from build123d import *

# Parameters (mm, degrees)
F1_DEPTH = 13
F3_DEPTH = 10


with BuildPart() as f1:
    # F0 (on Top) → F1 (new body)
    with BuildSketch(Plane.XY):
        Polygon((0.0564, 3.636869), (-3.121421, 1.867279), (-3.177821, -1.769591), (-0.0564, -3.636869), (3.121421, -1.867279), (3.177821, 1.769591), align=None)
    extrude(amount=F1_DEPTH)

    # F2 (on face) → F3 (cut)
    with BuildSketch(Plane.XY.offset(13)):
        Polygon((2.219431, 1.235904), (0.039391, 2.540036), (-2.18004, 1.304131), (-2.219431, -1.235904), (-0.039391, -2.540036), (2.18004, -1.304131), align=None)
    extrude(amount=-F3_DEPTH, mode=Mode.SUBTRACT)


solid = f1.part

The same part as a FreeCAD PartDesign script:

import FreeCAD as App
import Part
import Sketcher
Q = App.Units.Quantity


def add_polygon(sketch, points):
    """Adds a closed chain of lines whose ends are joined by coincident constraints."""
    first, n = sketch.GeometryCount, len(points)
    for a, b in zip(points, points[1:] + points[:1]):
        sketch.addGeometry(Part.LineSegment(App.Vector(*a, 0), App.Vector(*b, 0)), False)
    for i in range(n):
        sketch.addConstraint(Sketcher.Constraint("Coincident", first + i, 2, first + (i + 1) % n, 1))

doc = App.newDocument("Part")
body = doc.addObject("PartDesign::Body", "Body")

sketch1 = body.newObject("Sketcher::SketchObject", "Sketch")
sketch1.AttachmentSupport = (doc.getObject("XY_Plane"), [""])
sketch1.MapMode = "FlatFace"
add_polygon(sketch1, [(0.0564, 3.636869), (-3.121421, 1.867279), (-3.177821, -1.769591), (-0.0564, -3.636869), (3.121421, -1.867279), (3.177821, 1.769591)])
sketch1.addConstraint([
    Sketcher.Constraint("Symmetric", 0, 2, 3, 2, -1, 1),
    Sketcher.Constraint("Symmetric", 1, 2, 4, 2, -1, 1),
    Sketcher.Constraint("Symmetric", 2, 2, 5, 2, -1, 1),
    Sketcher.Constraint("Equal", 0, 1),
    Sketcher.Constraint("Equal", 1, 2),
    Sketcher.Constraint("DistanceX", 2, 2, -1, 1, Q("0.0564 mm")),
    Sketcher.Constraint("DistanceX", 1, 2, 0, 2, Q("0.0564 mm")),
    Sketcher.Constraint("DistanceX", 0, 2, -1, 1, Q("3.121421 mm")),
    Sketcher.Constraint("DistanceY", -1, 1, 0, 2, Q("1.867279 mm")),
])
pad1 = body.newObject("PartDesign::Pad", "Pad")
pad1.Profile = sketch1
pad1.Length = 13

sketch2 = body.newObject("Sketcher::SketchObject", "Sketch001")
sketch2.AttachmentSupport = (doc.getObject("XY_Plane"), [""])
sketch2.MapMode = "FlatFace"
sketch2.AttachmentOffset = App.Placement(App.Vector(0, 0, 13), App.Rotation())
add_polygon(sketch2, [(2.219431, 1.235904), (0.039391, 2.540036), (-2.18004, 1.304131), (-2.219431, -1.235904), (-0.039391, -2.540036), (2.18004, -1.304131)])
sketch2.addConstraint([
    Sketcher.Constraint("Symmetric", 0, 2, 3, 2, -1, 1),
    Sketcher.Constraint("Symmetric", 1, 2, 4, 2, -1, 1),
    Sketcher.Constraint("Symmetric", 2, 2, 5, 2, -1, 1),
    Sketcher.Constraint("Equal", 0, 1),
    Sketcher.Constraint("Equal", 1, 2),
    Sketcher.Constraint("Distance", 0, Q("2.540341 mm")),
    Sketcher.Constraint("DistanceX", -1, 1, 0, 2, Q("0.039391 mm")),
    Sketcher.Constraint("DistanceX", 1, 2, -1, 1, Q("2.18004 mm")),
    Sketcher.Constraint("DistanceY", -1, 1, 1, 2, Q("1.304131 mm")),
])
pocket1 = body.newObject("PartDesign::Pocket", "Pocket")
pocket1.Profile = sketch2
pocket1.Length = 10

doc.recompute()
